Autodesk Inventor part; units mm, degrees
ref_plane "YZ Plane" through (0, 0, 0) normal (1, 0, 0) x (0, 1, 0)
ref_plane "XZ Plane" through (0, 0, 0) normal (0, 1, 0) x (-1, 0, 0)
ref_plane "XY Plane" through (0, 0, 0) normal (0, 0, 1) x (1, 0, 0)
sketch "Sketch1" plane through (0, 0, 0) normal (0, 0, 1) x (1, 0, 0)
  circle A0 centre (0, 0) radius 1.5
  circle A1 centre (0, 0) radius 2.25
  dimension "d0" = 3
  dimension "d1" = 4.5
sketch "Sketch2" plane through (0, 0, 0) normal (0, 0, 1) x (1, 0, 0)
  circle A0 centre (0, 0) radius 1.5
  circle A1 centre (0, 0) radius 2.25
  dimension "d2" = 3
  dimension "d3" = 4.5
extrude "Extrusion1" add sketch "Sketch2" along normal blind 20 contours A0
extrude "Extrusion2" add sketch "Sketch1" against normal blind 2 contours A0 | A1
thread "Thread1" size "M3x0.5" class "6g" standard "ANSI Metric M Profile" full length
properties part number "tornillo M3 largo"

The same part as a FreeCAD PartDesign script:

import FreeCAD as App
import Part
import Sketcher
from FreeCAD import Vector
Q = App.Units.Quantity

doc = App.newDocument("Part")
body = doc.addObject("PartDesign::Body", "Body")

# Sketch on XY plane
sketch1 = doc.addObject("Sketcher::SketchObject", "Sketch")
body.addObject(sketch1)
sketch1.AttachmentSupport = (doc.XY_Plane, [""])
sketch1.MapMode = "FlatFace"
sketch1.addGeometry(Part.Circle(Vector(0, 0, 0), Vector(0, 0, 1), 1.5), False)
sketch1.addConstraint([
    Sketcher.Constraint("Coincident", 0, 3, -1, 1),
    Sketcher.Constraint("Diameter", 0, Q("3 mm")),
])
pad1 = doc.addObject("PartDesign::Pad", "Pad")
body.addObject(pad1)
pad1.Profile = sketch1
pad1.Length = 20

# Sketch on XY plane
sketch2 = doc.addObject("Sketcher::SketchObject", "Sketch001")
body.addObject(sketch2)
sketch2.AttachmentSupport = (doc.XY_Plane, [""])
sketch2.MapMode = "FlatFace"
sketch2.addGeometry(Part.Circle(Vector(0, 0, 0), Vector(0, 0, 1), 2.2), False)
sketch2.addConstraint([
    Sketcher.Constraint("Coincident", 0, 3, -1, 1),
    Sketcher.Constraint("Diameter", 0, Q("4.5 mm")),
])
pad2 = doc.addObject("PartDesign::Pad", "Pad001")
body.addObject(pad2)
pad2.Profile = sketch2
pad2.Length = 2
pad2.Reversed = True

doc.recompute()
